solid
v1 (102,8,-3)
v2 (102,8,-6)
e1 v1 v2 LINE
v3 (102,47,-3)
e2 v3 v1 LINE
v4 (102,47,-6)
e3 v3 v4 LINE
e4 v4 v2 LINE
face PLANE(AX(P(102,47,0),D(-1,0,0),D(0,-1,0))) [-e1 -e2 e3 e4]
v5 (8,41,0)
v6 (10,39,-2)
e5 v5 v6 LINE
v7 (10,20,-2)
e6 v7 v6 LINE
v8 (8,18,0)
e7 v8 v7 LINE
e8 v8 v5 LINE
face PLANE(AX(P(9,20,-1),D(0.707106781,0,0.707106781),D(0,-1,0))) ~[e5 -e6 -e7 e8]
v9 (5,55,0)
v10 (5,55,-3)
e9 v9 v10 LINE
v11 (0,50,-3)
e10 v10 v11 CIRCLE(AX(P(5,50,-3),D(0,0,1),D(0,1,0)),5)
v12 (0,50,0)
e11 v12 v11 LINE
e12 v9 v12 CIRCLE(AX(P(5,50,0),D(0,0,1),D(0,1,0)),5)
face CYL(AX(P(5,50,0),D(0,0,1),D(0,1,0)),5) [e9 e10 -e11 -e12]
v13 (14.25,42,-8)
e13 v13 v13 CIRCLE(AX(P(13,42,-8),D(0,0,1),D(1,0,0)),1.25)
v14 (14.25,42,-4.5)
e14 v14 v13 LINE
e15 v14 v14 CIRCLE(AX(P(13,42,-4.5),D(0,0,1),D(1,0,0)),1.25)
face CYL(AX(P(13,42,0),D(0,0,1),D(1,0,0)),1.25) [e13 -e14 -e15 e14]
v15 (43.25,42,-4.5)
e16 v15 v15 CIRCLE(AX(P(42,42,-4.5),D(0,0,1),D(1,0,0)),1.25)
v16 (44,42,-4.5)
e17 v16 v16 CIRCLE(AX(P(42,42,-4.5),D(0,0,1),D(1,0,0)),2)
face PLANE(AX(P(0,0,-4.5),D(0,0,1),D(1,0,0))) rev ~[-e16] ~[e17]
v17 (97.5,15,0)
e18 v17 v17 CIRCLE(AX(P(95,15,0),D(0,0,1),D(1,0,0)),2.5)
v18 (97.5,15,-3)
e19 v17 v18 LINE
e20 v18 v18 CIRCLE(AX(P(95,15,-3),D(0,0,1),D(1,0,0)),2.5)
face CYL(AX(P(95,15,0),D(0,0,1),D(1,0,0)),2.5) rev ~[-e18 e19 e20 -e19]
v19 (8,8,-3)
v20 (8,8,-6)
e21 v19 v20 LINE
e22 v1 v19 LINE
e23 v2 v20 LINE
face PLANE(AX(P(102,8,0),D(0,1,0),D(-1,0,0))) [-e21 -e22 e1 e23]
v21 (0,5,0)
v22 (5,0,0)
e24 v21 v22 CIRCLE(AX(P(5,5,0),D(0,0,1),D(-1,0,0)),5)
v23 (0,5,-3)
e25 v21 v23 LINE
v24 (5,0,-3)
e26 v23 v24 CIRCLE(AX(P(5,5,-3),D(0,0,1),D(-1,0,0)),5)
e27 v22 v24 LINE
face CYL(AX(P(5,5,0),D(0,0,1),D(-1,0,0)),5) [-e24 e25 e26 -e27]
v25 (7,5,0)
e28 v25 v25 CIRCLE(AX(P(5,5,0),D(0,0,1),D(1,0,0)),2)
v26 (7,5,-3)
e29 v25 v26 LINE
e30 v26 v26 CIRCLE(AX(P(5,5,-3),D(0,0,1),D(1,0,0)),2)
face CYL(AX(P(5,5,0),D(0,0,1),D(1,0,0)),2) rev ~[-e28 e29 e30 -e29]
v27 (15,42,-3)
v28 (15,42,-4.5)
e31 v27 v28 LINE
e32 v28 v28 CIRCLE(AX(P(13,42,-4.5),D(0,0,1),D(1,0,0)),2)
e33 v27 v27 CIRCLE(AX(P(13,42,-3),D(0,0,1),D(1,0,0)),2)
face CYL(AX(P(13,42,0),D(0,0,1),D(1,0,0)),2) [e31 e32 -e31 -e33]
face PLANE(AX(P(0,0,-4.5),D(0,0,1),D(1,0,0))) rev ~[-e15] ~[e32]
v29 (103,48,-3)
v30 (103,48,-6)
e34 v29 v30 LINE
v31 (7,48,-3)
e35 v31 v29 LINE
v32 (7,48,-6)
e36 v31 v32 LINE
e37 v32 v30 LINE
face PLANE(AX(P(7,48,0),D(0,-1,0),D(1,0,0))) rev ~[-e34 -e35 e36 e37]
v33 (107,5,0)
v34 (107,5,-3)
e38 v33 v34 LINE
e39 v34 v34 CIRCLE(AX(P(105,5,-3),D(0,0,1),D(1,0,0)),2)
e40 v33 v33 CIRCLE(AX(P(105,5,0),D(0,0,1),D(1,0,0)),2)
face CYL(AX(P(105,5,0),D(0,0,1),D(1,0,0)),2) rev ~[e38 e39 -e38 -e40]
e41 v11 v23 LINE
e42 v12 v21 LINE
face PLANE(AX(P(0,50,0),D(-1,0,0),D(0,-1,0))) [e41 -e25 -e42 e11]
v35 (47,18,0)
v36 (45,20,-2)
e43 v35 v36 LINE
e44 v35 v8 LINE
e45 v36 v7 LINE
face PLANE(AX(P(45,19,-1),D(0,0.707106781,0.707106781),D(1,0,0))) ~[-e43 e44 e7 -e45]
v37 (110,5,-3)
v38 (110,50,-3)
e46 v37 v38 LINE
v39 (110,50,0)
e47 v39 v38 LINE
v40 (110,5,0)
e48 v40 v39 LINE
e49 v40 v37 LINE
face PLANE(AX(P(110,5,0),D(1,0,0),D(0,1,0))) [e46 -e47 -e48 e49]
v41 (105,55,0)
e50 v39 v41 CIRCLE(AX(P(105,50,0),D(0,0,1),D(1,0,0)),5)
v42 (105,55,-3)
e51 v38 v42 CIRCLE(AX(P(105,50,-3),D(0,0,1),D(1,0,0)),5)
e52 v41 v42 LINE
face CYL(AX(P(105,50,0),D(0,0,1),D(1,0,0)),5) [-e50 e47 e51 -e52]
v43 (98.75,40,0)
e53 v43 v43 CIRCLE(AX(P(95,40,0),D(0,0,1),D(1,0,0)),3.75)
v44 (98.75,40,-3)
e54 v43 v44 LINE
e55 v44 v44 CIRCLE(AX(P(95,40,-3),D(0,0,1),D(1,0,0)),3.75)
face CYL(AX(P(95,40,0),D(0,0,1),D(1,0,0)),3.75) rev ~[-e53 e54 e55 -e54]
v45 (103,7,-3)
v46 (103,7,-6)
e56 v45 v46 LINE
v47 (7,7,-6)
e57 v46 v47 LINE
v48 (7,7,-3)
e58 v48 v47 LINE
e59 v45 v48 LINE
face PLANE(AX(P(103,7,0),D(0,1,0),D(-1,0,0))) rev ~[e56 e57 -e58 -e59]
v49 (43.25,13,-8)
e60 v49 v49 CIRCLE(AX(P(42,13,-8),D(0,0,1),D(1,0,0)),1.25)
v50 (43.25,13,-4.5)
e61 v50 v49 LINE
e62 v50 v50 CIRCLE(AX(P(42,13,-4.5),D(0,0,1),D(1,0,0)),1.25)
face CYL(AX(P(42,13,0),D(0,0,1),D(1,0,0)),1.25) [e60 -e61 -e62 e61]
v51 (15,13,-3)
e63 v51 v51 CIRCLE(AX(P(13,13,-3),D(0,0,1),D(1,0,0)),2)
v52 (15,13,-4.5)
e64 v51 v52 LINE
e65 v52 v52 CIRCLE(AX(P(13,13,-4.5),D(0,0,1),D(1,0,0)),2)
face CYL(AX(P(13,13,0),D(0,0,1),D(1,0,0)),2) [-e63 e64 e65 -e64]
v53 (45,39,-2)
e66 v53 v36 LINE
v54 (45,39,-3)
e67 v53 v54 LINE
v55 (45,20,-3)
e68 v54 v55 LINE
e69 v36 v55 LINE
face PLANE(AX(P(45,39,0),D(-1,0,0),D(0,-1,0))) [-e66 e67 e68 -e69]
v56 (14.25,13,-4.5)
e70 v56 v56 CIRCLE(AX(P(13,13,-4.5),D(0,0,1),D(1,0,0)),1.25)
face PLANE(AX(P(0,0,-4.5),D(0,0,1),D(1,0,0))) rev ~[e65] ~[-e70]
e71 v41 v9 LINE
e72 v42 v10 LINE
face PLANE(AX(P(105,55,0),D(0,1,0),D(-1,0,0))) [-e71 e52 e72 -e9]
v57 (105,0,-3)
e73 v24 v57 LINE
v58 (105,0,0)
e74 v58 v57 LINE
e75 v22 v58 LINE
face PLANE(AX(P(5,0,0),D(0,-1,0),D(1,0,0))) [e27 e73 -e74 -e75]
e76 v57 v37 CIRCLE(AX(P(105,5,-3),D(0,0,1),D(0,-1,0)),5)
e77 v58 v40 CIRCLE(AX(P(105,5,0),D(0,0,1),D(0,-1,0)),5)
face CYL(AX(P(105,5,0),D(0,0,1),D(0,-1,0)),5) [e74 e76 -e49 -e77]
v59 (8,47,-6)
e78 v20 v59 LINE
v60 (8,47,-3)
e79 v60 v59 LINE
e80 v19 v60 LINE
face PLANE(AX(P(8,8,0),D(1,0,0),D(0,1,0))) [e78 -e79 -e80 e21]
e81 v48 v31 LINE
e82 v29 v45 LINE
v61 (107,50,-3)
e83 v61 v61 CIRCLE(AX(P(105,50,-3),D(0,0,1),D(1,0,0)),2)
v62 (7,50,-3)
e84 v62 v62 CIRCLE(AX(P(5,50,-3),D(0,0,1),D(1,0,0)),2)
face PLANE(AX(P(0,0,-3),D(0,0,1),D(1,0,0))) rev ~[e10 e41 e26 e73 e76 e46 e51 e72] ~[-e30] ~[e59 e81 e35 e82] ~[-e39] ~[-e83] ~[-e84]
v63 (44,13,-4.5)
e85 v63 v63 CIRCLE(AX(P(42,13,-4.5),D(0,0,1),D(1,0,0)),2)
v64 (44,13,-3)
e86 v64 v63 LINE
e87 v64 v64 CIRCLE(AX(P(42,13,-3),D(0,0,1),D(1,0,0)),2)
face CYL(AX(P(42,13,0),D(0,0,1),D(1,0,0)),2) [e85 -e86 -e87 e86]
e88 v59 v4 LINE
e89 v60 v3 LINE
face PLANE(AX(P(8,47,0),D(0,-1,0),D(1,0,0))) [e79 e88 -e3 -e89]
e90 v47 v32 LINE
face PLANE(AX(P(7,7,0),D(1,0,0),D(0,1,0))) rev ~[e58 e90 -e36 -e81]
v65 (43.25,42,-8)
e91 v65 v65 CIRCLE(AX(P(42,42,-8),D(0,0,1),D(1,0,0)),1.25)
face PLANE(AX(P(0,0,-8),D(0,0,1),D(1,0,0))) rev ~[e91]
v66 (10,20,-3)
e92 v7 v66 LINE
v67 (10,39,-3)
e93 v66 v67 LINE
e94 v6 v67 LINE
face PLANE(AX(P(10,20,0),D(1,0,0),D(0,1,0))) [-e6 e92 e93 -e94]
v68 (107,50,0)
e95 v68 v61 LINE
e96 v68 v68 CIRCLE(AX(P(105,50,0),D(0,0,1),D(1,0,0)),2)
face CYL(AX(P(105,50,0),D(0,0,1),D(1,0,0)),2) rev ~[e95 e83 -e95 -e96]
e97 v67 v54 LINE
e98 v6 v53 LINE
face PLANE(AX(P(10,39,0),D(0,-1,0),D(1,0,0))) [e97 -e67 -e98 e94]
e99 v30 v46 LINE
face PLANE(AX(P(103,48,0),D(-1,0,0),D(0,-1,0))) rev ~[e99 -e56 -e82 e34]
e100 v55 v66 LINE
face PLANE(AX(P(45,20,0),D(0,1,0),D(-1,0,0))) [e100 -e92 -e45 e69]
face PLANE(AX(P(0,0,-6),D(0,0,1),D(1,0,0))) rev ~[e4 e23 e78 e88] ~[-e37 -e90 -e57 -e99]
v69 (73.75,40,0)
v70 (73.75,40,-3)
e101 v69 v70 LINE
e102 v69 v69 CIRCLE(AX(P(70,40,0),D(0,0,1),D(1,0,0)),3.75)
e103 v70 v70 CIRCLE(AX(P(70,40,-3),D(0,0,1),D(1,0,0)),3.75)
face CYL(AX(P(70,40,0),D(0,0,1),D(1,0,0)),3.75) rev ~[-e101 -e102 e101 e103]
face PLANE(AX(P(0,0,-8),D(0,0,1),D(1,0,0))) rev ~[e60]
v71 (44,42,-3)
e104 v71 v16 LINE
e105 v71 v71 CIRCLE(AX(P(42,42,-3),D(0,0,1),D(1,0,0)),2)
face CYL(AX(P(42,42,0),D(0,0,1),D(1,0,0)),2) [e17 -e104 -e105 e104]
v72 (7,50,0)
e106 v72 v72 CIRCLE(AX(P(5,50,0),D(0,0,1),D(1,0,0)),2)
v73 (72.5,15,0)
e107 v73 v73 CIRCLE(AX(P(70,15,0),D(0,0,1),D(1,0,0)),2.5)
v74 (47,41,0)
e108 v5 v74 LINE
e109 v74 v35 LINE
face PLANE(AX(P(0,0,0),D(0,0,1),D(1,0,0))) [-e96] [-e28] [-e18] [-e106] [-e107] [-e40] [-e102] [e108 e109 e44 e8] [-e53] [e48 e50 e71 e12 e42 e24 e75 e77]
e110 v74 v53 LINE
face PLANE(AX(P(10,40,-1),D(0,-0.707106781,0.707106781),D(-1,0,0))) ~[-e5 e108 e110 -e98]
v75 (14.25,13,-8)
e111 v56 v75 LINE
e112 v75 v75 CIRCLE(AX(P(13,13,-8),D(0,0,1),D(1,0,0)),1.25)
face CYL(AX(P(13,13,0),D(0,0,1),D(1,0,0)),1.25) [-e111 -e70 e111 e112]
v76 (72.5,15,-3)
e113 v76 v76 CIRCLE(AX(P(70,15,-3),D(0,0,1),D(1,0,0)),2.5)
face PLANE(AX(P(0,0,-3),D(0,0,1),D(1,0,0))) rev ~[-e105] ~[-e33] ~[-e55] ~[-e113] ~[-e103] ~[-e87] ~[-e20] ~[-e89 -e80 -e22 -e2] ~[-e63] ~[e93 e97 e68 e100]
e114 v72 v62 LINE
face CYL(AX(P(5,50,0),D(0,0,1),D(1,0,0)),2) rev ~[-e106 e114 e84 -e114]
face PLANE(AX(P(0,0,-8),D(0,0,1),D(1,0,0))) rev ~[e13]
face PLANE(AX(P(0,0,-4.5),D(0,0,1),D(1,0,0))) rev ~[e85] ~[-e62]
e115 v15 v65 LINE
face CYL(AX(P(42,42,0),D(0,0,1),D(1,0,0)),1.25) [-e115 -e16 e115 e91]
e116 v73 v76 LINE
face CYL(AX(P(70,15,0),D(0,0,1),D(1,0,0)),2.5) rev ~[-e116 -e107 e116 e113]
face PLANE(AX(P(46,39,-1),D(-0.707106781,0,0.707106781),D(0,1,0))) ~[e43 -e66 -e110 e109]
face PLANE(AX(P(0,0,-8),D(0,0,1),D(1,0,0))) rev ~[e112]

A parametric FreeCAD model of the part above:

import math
import FreeCAD as App
import Part
import Sketcher

V = App.Vector


def edges_at(feature, points):
    """Names of the edges that pass closest to the given points."""
    edges = feature.Shape.Edges
    near = lambda p: min(range(len(edges)), key=lambda i: edges[i].distToShape(Part.Vertex(*p))[0])
    return sorted({f"Edge{near(p) + 1}" for p in points})

doc = App.newDocument("Part")
params = doc.addObject("Spreadsheet::Sheet", "Params")
for row, (alias, value) in enumerate([
    ("sketch1_diameter", "4 mm"),
    ("sketch1_diameter2", "5 mm"),
    ("sketch1_radius", "5 mm"),
    ("sketch1_diameter3", "7.5 mm"),
    ("sketch1_width", "100 mm"),
    ("pad1_length", "3 mm"),
    ("sketch2_width", "96 mm"),
    ("sketch2_width2", "94 mm"),
    ("sketch2_height", "41 mm"),
    ("sketch2_height2", "39 mm"),
    ("pad2_length", "6 mm"),
    ("sketch3_diameter", "4 mm"),
    ("sketch3_diameter2", "2.5 mm"),
    ("pad3_length", "4.5 mm"),
    ("sketch4_diameter", "2.5 mm"),
    ("pad4_length", "8 mm"),
    ("chamfer_size", "2 mm"),
], start=1):
    params.set(f"A{row}", alias)
    params.set(f"B{row}", "=" + value)
    params.setAlias(f"B{row}", alias)

body = doc.addObject("PartDesign::Body", "Body")
body.AllowCompound = True

# Sketch on XY plane
sketch1 = body.newObject("Sketcher::SketchObject", "Sketch")
sketch1.AttachmentSupport = (doc.getObject("XY_Plane"), [""])
sketch1.MapMode = "FlatFace"
sketch1.addGeometry([
    Part.ArcOfCircle(Part.Circle(V(5, 5, 0), V(0, 0, 1), 5), math.radians(180), math.radians(270)),  # 0
    Part.LineSegment(V(5, 0, 0), V(105, 0, 0)),  # 1
    Part.ArcOfCircle(Part.Circle(V(105, 5, 0), V(0, 0, 1), 5), math.radians(-90), math.radians(0)),  # 2
    Part.LineSegment(V(110, 5, 0), V(110, 50, 0)),  # 3
    Part.ArcOfCircle(Part.Circle(V(105, 50, 0), V(0, 0, 1), 5), math.radians(0), math.radians(90)),  # 4
    Part.LineSegment(V(105, 55, 0), V(5, 55, 0)),  # 5
    Part.ArcOfCircle(Part.Circle(V(5, 50, 0), V(0, 0, 1), 5), math.radians(90), math.radians(180)),  # 6
    Part.LineSegment(V(0, 50, 0), V(0, 5, 0)),  # 7
    Part.Circle(V(5, 5, 0), V(0, 0, 1), 2),  # 8
    Part.Circle(V(105, 5, 0), V(0, 0, 1), 2),  # 9
    Part.Circle(V(5, 50, 0), V(0, 0, 1), 2),  # 10
    Part.LineSegment(V(7, 7, 0), V(7, 48, 0)),  # 11
    Part.LineSegment(V(7, 48, 0), V(103, 48, 0)),  # 12
    Part.LineSegment(V(103, 48, 0), V(103, 7, 0)),  # 13
    Part.LineSegment(V(103, 7, 0), V(7, 7, 0)),  # 14
    Part.Circle(V(105, 50, 0), V(0, 0, 1), 2),  # 15
    Part.LineSegment(V(102, 47, 0), V(8, 47, 0)),  # 16
    Part.LineSegment(V(8, 47, 0), V(8, 8, 0)),  # 17
    Part.LineSegment(V(8, 8, 0), V(102, 8, 0)),  # 18
    Part.LineSegment(V(102, 8, 0), V(102, 47, 0)),  # 19
    Part.LineSegment(V(10, 39, 0), V(45, 39, 0)),  # 20
    Part.LineSegment(V(45, 39, 0), V(45, 20, 0)),  # 21
    Part.LineSegment(V(45, 20, 0), V(10, 20, 0)),  # 22
    Part.LineSegment(V(10, 20, 0), V(10, 39, 0)),  # 23
    Part.Circle(V(13, 42, 0), V(0, 0, 1), 2),  # 24
    Part.Circle(V(42, 42, 0), V(0, 0, 1), 2),  # 25
    Part.Circle(V(70, 15, 0), V(0, 0, 1), 2.5),  # 26
    Part.Circle(V(95, 15, 0), V(0, 0, 1), 2.5),  # 27
    Part.Circle(V(95, 40, 0), V(0, 0, 1), 3.75),  # 28
    Part.Circle(V(70, 40, 0), V(0, 0, 1), 3.75),  # 29
    Part.Circle(V(42, 13, 0), V(0, 0, 1), 2),  # 30
    Part.Circle(V(13, 13, 0), V(0, 0, 1), 2),  # 31
], False)
sketch1.addConstraint([
    Sketcher.Constraint("Tangent", 0, 2, 1, 1),
    Sketcher.Constraint("Tangent", 1, 2, 2, 1),
    Sketcher.Constraint("Tangent", 2, 2, 3, 1),
    Sketcher.Constraint("Tangent", 3, 2, 4, 1),
    Sketcher.Constraint("Tangent", 4, 2, 5, 1),
    Sketcher.Constraint("Tangent", 5, 2, 6, 1),
    Sketcher.Constraint("Tangent", 6, 2, 7, 1),
    Sketcher.Constraint("Tangent", 7, 2, 0, 1),
    Sketcher.Constraint("Coincident", 11, 2, 12, 1),
    Sketcher.Constraint("Coincident", 12, 2, 13, 1),
    Sketcher.Constraint("Coincident", 13, 2, 14, 1),
    Sketcher.Constraint("Coincident", 14, 2, 11, 1),
    Sketcher.Constraint("Coincident", 16, 2, 17, 1),
    Sketcher.Constraint("Coincident", 17, 2, 18, 1),
    Sketcher.Constraint("Coincident", 18, 2, 19, 1),
    Sketcher.Constraint("Coincident", 19, 2, 16, 1),
    Sketcher.Constraint("Coincident", 20, 2, 21, 1),
    Sketcher.Constraint("Coincident", 21, 2, 22, 1),
    Sketcher.Constraint("Coincident", 22, 2, 23, 1),
    Sketcher.Constraint("Coincident", 23, 2, 20, 1),
    Sketcher.Constraint("Horizontal", 1),
    Sketcher.Constraint("Vertical", 3),
    Sketcher.Constraint("Horizontal", 5),
    Sketcher.Constraint("Vertical", 7),
    Sketcher.Constraint("Vertical", 11),
    Sketcher.Constraint("Horizontal", 12),
    Sketcher.Constraint("Vertical", 13),
    Sketcher.Constraint("Horizontal", 14),
    Sketcher.Constraint("Horizontal", 16),
    Sketcher.Constraint("Vertical", 17),
    Sketcher.Constraint("Horizontal", 18),
    Sketcher.Constraint("Vertical", 19),
    Sketcher.Constraint("Horizontal", 20),
    Sketcher.Constraint("Vertical", 21),
    Sketcher.Constraint("Horizontal", 22),
    Sketcher.Constraint("Vertical", 23),
    Sketcher.Constraint("Coincident", 8, 3, 0, 3),
    Sketcher.Constraint("Coincident", 9, 3, 2, 3),
    Sketcher.Constraint("Coincident", 10, 3, 6, 3),
    Sketcher.Constraint("Coincident", 15, 3, 4, 3),
    Sketcher.Constraint("Equal", 0, 2),
    Sketcher.Constraint("Equal", 2, 4),
    Sketcher.Constraint("Equal", 4, 6),
    Sketcher.Constraint("Equal", 8, 9),
    Sketcher.Constraint("Equal", 9, 10),
    Sketcher.Constraint("Equal", 10, 15),
    Sketcher.Constraint("Equal", 15, 24),
    Sketcher.Constraint("Equal", 24, 25),
    Sketcher.Constraint("Equal", 26, 27),
    Sketcher.Constraint("Equal", 28, 29),
    Sketcher.Constraint("Equal", 25, 30),
    Sketcher.Constraint("Equal", 30, 31),
    Sketcher.Constraint("PointOnObject", 0, 2, -1),
    Sketcher.Constraint("PointOnObject", 6, 2, -2),
    Sketcher.Constraint("Horizontal", 24, 3, 25, 3),
    Sketcher.Constraint("Horizontal", 26, 3, 27, 3),
    Sketcher.Constraint("Horizontal", 28, 3, 29, 3),
    Sketcher.Constraint("Horizontal", 30, 3, 31, 3),
    Sketcher.Constraint("Vertical", 27, 3, 28, 3),
    Sketcher.Constraint("Vertical", 26, 3, 29, 3),
    Sketcher.Constraint("Vertical", 25, 3, 30, 3),
    Sketcher.Constraint("Vertical", 24, 3, 31, 3),
    Sketcher.Constraint("Diameter", 8, 4.0),
    Sketcher.Constraint("Diameter", 26, 5.0),
    Sketcher.Constraint("Radius", 0, 5.0),
    Sketcher.Constraint("Diameter", 28, 7.5),
    Sketcher.Constraint("DistanceX", 1, 1, 1, 2, 100.0),
    Sketcher.Constraint("DistanceY", 3, 1, 3, 2, 45.0),
    Sketcher.Constraint("DistanceX", -1, 1, 20, 2, 45.0),
    Sketcher.Constraint("DistanceY", -1, 1, 21, 2, 20.0),
    Sketcher.Constraint("DistanceX", -1, 1, 22, 2, 10.0),
    Sketcher.Constraint("DistanceX", 24, 3, 25, 3, 29.0),
    Sketcher.Constraint("DistanceY", 2, 3, 26, 3, 10.0),
    Sketcher.Constraint("DistanceX", 27, 3, 2, 3, 10.0),
    Sketcher.Constraint("DistanceX", 26, 3, 27, 3, 25.0),
    Sketcher.Constraint("DistanceY", 28, 3, 4, 3, 10.0),
    Sketcher.Constraint("DistanceY", 30, 3, 25, 3, 29.0),
    Sketcher.Constraint("DistanceX", 16, 2, 24, 3, 5.0),
    Sketcher.Constraint("DistanceY", 24, 3, 16, 2, 5.0),
    Sketcher.Constraint("DistanceY", 17, 2, 31, 3, 5.0),
    Sketcher.Constraint("DistanceX", 12, 1, 12, 2, 96.0),
    Sketcher.Constraint("DistanceX", 16, 2, 16, 1, 94.0),
    Sketcher.Constraint("DistanceY", 11, 1, 11, 2, 41.0),
    Sketcher.Constraint("DistanceY", 21, 2, 21, 1, 19.0),
    Sketcher.Constraint("DistanceX", -1, 1, 24, 3, 13.0),
    Sketcher.Constraint("DistanceY", -1, 1, 24, 3, 42.0),
    Sketcher.Constraint("DistanceX", -1, 1, 11, 2, 7.0),
    Sketcher.Constraint("DistanceY", -1, 1, 11, 2, 48.0),
])
sketch1.setExpression("Constraints[62]", "Params.sketch1_diameter")
sketch1.setExpression("Constraints[63]", "Params.sketch1_diameter2")
sketch1.setExpression("Constraints[64]", "Params.sketch1_radius")
sketch1.setExpression("Constraints[65]", "Params.sketch1_diameter3")
sketch1.setExpression("Constraints[66]", "Params.sketch1_width")
pad1 = body.newObject("PartDesign::Pad", "Pad")
pad1.Profile = sketch1
pad1.setExpression("Length", "Params.pad1_length")
pad1.Reversed = True

# Sketch on XY plane
sketch2 = body.newObject("Sketcher::SketchObject", "Sketch001")
sketch2.AttachmentSupport = (doc.getObject("XY_Plane"), [""])
sketch2.MapMode = "FlatFace"
sketch2.addGeometry([
    Part.LineSegment(V(103, 48, 0), V(7, 48, 0)),  # 0
    Part.LineSegment(V(7, 48, 0), V(7, 7, 0)),  # 1
    Part.LineSegment(V(7, 7, 0), V(103, 7, 0)),  # 2
    Part.LineSegment(V(103, 7, 0), V(103, 48, 0)),  # 3
    Part.LineSegment(V(8, 8, 0), V(8, 47, 0)),  # 4
    Part.LineSegment(V(8, 47, 0), V(102, 47, 0)),  # 5
    Part.LineSegment(V(102, 47, 0), V(102, 8, 0)),  # 6
    Part.LineSegment(V(102, 8, 0), V(8, 8, 0)),  # 7
], False)
sketch2.addConstraint([
    Sketcher.Constraint("Coincident", 0, 2, 1, 1),
    Sketcher.Constraint("Coincident", 1, 2, 2, 1),
    Sketcher.Constraint("Coincident", 2, 2, 3, 1),
    Sketcher.Constraint("Coincident", 3, 2, 0, 1),
    Sketcher.Constraint("Coincident", 4, 2, 5, 1),
    Sketcher.Constraint("Coincident", 5, 2, 6, 1),
    Sketcher.Constraint("Coincident", 6, 2, 7, 1),
    Sketcher.Constraint("Coincident", 7, 2, 4, 1),
    Sketcher.Constraint("Horizontal", 0),
    Sketcher.Constraint("Vertical", 1),
    Sketcher.Constraint("Horizontal", 2),
    Sketcher.Constraint("Vertical", 3),
    Sketcher.Constraint("Vertical", 4),
    Sketcher.Constraint("Horizontal", 5),
    Sketcher.Constraint("Vertical", 6),
    Sketcher.Constraint("Horizontal", 7),
    Sketcher.Constraint("DistanceX", 0, 2, 0, 1, 96.0),
    Sketcher.Constraint("DistanceX", 5, 1, 5, 2, 94.0),
    Sketcher.Constraint("DistanceY", 1, 2, 1, 1, 41.0),
    Sketcher.Constraint("DistanceY", 4, 1, 4, 2, 39.0),
    Sketcher.Constraint("DistanceX", -1, 1, 0, 2, 7.0),
    Sketcher.Constraint("DistanceY", -1, 1, 0, 2, 48.0),
    Sketcher.Constraint("DistanceX", -1, 1, 4, 2, 8.0),
    Sketcher.Constraint("DistanceY", -1, 1, 4, 2, 47.0),
])
sketch2.setExpression("Constraints[16]", "Params.sketch2_width")
sketch2.setExpression("Constraints[17]", "Params.sketch2_width2")
sketch2.setExpression("Constraints[18]", "Params.sketch2_height")
sketch2.setExpression("Constraints[19]", "Params.sketch2_height2")
pad2 = body.newObject("PartDesign::Pad", "Pad001")
pad2.Profile = sketch2
pad2.setExpression("Length", "Params.pad2_length")
pad2.Reversed = True

# Sketch on XY plane
sketch3 = body.newObject("Sketcher::SketchObject", "Sketch002")
sketch3.AttachmentSupport = (doc.getObject("XY_Plane"), [""])
sketch3.MapMode = "FlatFace"
sketch3.addGeometry([
    Part.Circle(V(13, 42, 0), V(0, 0, 1), 2),  # 0
    Part.Circle(V(13, 42, 0), V(0, 0, 1), 1.25),  # 1
    Part.Circle(V(42, 42, 0), V(0, 0, 1), 2),  # 2
    Part.Circle(V(42, 42, 0), V(0, 0, 1), 1.25),  # 3
    Part.Circle(V(13, 13, 0), V(0, 0, 1), 2),  # 4
    Part.Circle(V(13, 13, 0), V(0, 0, 1), 1.25),  # 5
    Part.Circle(V(42, 13, 0), V(0, 0, 1), 2),  # 6
    Part.Circle(V(42, 13, 0), V(0, 0, 1), 1.25),  # 7
], False)
sketch3.addConstraint([
    Sketcher.Constraint("Coincident", 1, 3, 0, 3),
    Sketcher.Constraint("Coincident", 3, 3, 2, 3),
    Sketcher.Constraint("Coincident", 5, 3, 4, 3),
    Sketcher.Constraint("Coincident", 7, 3, 6, 3),
    Sketcher.Constraint("Equal", 0, 2),
    Sketcher.Constraint("Equal", 1, 3),
    Sketcher.Constraint("Equal", 2, 4),
    Sketcher.Constraint("Equal", 3, 5),
    Sketcher.Constraint("Equal", 4, 6),
    Sketcher.Constraint("Equal", 5, 7),
    Sketcher.Constraint("Horizontal", 1, 3, 2, 3),
    Sketcher.Constraint("Horizontal", 5, 3, 6, 3),
    Sketcher.Constraint("Vertical", 1, 3, 4, 3),
    Sketcher.Constraint("Vertical", 3, 3, 6, 3),
    Sketcher.Constraint("Diameter", 0, 4.0),
    Sketcher.Constraint("Diameter", 1, 2.5),
    Sketcher.Constraint("DistanceX", 0, 3, 2, 3, 29.0),
    Sketcher.Constraint("DistanceY", 4, 3, 0, 3, 29.0),
    Sketcher.Constraint("DistanceX", -1, 1, 0, 3, 13.0),
    Sketcher.Constraint("DistanceY", -1, 1, 0, 3, 42.0),
])
sketch3.setExpression("Constraints[14]", "Params.sketch3_diameter")
sketch3.setExpression("Constraints[15]", "Params.sketch3_diameter2")
pad3 = body.newObject("PartDesign::Pad", "Pad002")
pad3.Profile = sketch3
pad3.setExpression("Length", "Params.pad3_length")
pad3.Reversed = True

# Sketch on XY plane
sketch4 = body.newObject("Sketcher::SketchObject", "Sketch003")
sketch4.AttachmentSupport = (doc.getObject("XY_Plane"), [""])
sketch4.MapMode = "FlatFace"
sketch4.addGeometry([
    Part.Circle(V(13, 42, 0), V(0, 0, 1), 1.25),
    Part.Circle(V(42, 42, 0), V(0, 0, 1), 1.25),
    Part.Circle(V(13, 13, 0), V(0, 0, 1), 1.25),
    Part.Circle(V(42, 13, 0), V(0, 0, 1), 1.25),
], False)
sketch4.addConstraint([
    Sketcher.Constraint("Equal", 0, 1),
    Sketcher.Constraint("Equal", 1, 2),
    Sketcher.Constraint("Equal", 2, 3),
    Sketcher.Constraint("Horizontal", 0, 3, 1, 3),
    Sketcher.Constraint("Horizontal", 2, 3, 3, 3),
    Sketcher.Constraint("Vertical", 0, 3, 2, 3),
    Sketcher.Constraint("Vertical", 1, 3, 3, 3),
    Sketcher.Constraint("Diameter", 0, 2.5),
    Sketcher.Constraint("DistanceX", 0, 3, 1, 3, 29.0),
    Sketcher.Constraint("DistanceY", 2, 3, 0, 3, 29.0),
    Sketcher.Constraint("DistanceX", -1, 1, 0, 3, 13.0),
    Sketcher.Constraint("DistanceY", -1, 1, 0, 3, 42.0),
])
sketch4.setExpression("Constraints[7]", "Params.sketch4_diameter")
pad4 = body.newObject("PartDesign::Pad", "Pad003")
pad4.Profile = sketch4
pad4.setExpression("Length", "Params.pad4_length")
pad4.Reversed = True
doc.recompute()

chamfer = body.newObject("PartDesign::Chamfer", "Chamfer")
chamfer.Base = (pad4, edges_at(pad4, [
    (27.5, 20, 0),
    (27.5, 39, 0),
    (45, 29.5, 0),
    (10, 29.5, 0),
]))
chamfer.setExpression("Size", "Params.chamfer_size")

doc.recompute()
